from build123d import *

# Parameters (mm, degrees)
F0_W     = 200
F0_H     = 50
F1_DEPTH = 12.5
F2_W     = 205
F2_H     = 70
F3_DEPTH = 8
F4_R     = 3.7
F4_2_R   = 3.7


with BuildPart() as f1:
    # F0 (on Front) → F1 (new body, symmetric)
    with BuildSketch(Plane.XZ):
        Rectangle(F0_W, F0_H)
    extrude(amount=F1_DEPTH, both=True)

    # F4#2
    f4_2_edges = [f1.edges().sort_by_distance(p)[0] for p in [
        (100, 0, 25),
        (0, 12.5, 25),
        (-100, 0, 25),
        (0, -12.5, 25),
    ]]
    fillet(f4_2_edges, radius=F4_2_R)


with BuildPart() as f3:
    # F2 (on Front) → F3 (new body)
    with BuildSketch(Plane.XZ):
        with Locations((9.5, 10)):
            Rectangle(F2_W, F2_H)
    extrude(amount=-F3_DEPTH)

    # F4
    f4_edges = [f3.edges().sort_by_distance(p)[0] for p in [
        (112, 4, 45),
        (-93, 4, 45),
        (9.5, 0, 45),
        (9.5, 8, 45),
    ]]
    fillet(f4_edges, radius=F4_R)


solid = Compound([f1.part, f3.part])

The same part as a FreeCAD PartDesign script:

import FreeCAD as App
import Part
import Sketcher
from FreeCAD import Vector


def edges_at(feature, points):
    """Names of the edges that pass closest to the given points."""
    edges = feature.Shape.Edges
    near = lambda p: min(range(len(edges)), key=lambda i: edges[i].distToShape(Part.Vertex(*p))[0])
    return sorted({f"Edge{near(p) + 1}" for p in points})


def add_polygon(sketch, points):
    """Adds a closed chain of lines whose ends are joined by coincident constraints."""
    first, n = sketch.GeometryCount, len(points)
    for a, b in zip(points, points[1:] + points[:1]):
        sketch.addGeometry(Part.LineSegment(App.Vector(*a, 0), App.Vector(*b, 0)), False)
    for i in range(n):
        sketch.addConstraint(Sketcher.Constraint("Coincident", first + i, 2, first + (i + 1) % n, 1))

doc = App.newDocument("Part")
body = doc.addObject("PartDesign::Body", "Body")

sketch1 = body.newObject("Sketcher::SketchObject", "Sketch")
sketch1.AttachmentSupport = (doc.getObject("XZ_Plane"), [""])
sketch1.MapMode = "FlatFace"
add_polygon(sketch1, [(-100, 25), (-100, -25), (100, -25), (100, 25)])
sketch1.addConstraint([
    Sketcher.Constraint("Vertical", 0),
    Sketcher.Constraint("Horizontal", 1),
    Sketcher.Constraint("Vertical", 2),
    Sketcher.Constraint("Horizontal", 3),
    Sketcher.Constraint("Symmetric", 0, 2, 2, 2, -1, 1),
    Sketcher.Constraint("DistanceX", 1, 1, 1, 2, 200.0),
    Sketcher.Constraint("DistanceY", 0, 2, 0, 1, 50.0),
])
pad1 = body.newObject("PartDesign::Pad", "Pad")
pad1.Profile = sketch1
pad1.Length = 25
pad1.Midplane = True
doc.recompute()

fillet = body.newObject("PartDesign::Fillet", "Fillet")
fillet.Base = (pad1, edges_at(pad1, [
    (100, 0, 25),
    (0, 12.5, 25),
    (-100, 0, 25),
    (0, -12.5, 25),
]))
fillet.Radius = 3.7
body2 = doc.addObject("PartDesign::Body", "Body001")

sketch2 = body2.newObject("Sketcher::SketchObject", "Sketch001")
sketch2.AttachmentSupport = (doc.getObject("XZ_Plane001"), [""])
sketch2.MapMode = "FlatFace"
add_polygon(sketch2, [(-93, 45), (-93, -25), (112, -25), (112, 45)])
sketch2.addConstraint([
    Sketcher.Constraint("Vertical", 0),
    Sketcher.Constraint("Horizontal", 1),
    Sketcher.Constraint("Vertical", 2),
    Sketcher.Constraint("Horizontal", 3),
    Sketcher.Constraint("DistanceX", 1, 1, 1, 2, 205.0),
    Sketcher.Constraint("DistanceY", 0, 2, 0, 1, 70.0),
    Sketcher.Constraint("DistanceX", 0, 2, -1, 1, 93.0),
    Sketcher.Constraint("DistanceY", 0, 2, -1, 1, 25.0),
])
pad2 = body2.newObject("PartDesign::Pad", "Pad001")
pad2.Profile = sketch2
pad2.Length = 8
pad2.Reversed = True
doc.recompute()

fillet2 = body2.newObject("PartDesign::Fillet", "Fillet001")
fillet2.Base = (pad2, edges_at(pad2, [
    (112, 4, 45),
    (-93, 4, 45),
    (9.5, 0, 45),
    (9.5, 8, 45),
]))
fillet2.Radius = 3.7

doc.recompute()
